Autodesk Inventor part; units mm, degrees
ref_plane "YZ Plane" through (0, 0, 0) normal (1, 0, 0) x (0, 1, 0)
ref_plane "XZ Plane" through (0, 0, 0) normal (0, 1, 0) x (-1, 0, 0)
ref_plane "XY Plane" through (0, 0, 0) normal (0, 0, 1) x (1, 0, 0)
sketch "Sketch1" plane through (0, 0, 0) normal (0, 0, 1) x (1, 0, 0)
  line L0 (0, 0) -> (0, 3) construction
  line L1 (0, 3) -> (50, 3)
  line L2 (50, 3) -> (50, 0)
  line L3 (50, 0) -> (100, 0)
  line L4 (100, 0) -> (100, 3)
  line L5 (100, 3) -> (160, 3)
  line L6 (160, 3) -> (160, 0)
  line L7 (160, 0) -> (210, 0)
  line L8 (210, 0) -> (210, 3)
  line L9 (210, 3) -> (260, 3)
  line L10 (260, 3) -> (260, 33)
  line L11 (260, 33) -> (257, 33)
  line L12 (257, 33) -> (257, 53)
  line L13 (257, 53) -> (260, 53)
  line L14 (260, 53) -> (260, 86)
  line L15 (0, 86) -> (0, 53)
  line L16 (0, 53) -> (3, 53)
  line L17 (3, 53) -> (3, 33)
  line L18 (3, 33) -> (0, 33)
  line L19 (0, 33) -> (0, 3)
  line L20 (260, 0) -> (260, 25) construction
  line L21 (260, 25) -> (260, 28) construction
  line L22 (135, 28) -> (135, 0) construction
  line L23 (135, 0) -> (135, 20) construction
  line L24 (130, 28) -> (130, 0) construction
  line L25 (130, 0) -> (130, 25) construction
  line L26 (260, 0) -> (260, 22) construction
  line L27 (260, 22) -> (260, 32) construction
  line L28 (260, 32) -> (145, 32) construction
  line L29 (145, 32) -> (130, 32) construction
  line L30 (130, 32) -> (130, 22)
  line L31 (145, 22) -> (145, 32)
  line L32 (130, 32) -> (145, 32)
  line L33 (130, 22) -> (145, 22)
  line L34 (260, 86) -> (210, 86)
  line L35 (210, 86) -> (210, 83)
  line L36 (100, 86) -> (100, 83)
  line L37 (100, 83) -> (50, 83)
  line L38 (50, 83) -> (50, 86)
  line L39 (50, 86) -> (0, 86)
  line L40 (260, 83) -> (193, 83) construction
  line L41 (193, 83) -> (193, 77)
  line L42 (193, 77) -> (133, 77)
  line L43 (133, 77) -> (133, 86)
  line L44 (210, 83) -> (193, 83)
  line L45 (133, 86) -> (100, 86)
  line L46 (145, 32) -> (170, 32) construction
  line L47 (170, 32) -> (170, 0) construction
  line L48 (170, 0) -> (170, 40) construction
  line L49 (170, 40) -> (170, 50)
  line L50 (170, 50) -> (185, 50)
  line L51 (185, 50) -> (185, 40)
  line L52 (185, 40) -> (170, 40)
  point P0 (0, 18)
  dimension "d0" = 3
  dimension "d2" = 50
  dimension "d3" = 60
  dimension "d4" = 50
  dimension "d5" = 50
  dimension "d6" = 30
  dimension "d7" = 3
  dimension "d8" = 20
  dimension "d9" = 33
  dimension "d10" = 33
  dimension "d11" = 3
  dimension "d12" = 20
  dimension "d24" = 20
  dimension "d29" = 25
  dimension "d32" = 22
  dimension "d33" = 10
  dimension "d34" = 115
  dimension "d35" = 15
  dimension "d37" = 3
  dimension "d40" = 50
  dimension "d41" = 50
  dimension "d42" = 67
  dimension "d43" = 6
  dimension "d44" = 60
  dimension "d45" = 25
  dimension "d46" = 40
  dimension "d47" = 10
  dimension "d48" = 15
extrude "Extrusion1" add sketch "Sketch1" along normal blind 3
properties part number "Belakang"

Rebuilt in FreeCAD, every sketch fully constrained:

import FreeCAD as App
import Part
import Sketcher
Q = App.Units.Quantity

doc = App.newDocument("Part")
params = doc.addObject("Spreadsheet::Sheet", "Params")
for row, (alias, value) in enumerate([
    ("sketch1_width", "50 mm"),
    ("sketch1_width2", "60 mm"),
    ("sketch1_width3", "3 mm"),
    ("sketch1_width4", "33 mm"),
    ("sketch1_width5", "15 mm"),
    ("pad1_length", "3 mm"),
], start=1):
    params.set(f"A{row}", alias)
    params.set(f"B{row}", "=" + value)
    params.setAlias(f"B{row}", alias)

body = doc.addObject("PartDesign::Body", "Body")

sketch1 = body.newObject("Sketcher::SketchObject", "Sketch")
sketch1.AttachmentSupport = (doc.getObject("XY_Plane"), [""])
sketch1.MapMode = "FlatFace"
sketch1.addGeometry([
    Part.LineSegment(App.Vector(0, 33, 0), App.Vector(0, 3, 0)),
    Part.LineSegment(App.Vector(0, 3, 0), App.Vector(50, 3, 0)),
    Part.LineSegment(App.Vector(50, 3, 0), App.Vector(50, 0, 0)),
    Part.LineSegment(App.Vector(50, 0, 0), App.Vector(100, 0, 0)),
    Part.LineSegment(App.Vector(100, 0, 0), App.Vector(100, 3, 0)),
    Part.LineSegment(App.Vector(100, 3, 0), App.Vector(160, 3, 0)),
    Part.LineSegment(App.Vector(160, 3, 0), App.Vector(160, 0, 0)),
    Part.LineSegment(App.Vector(160, 0, 0), App.Vector(210, 0, 0)),
    Part.LineSegment(App.Vector(210, 0, 0), App.Vector(210, 3, 0)),
    Part.LineSegment(App.Vector(210, 3, 0), App.Vector(260, 3, 0)),
    Part.LineSegment(App.Vector(260, 3, 0), App.Vector(260, 33, 0)),
    Part.LineSegment(App.Vector(260, 33, 0), App.Vector(257, 33, 0)),
    Part.LineSegment(App.Vector(257, 33, 0), App.Vector(257, 53, 0)),
    Part.LineSegment(App.Vector(257, 53, 0), App.Vector(260, 53, 0)),
    Part.LineSegment(App.Vector(260, 53, 0), App.Vector(260, 86, 0)),
    Part.LineSegment(App.Vector(260, 86, 0), App.Vector(210, 86, 0)),
    Part.LineSegment(App.Vector(210, 86, 0), App.Vector(210, 83, 0)),
    Part.LineSegment(App.Vector(210, 83, 0), App.Vector(193, 83, 0)),
    Part.LineSegment(App.Vector(193, 83, 0), App.Vector(193, 77, 0)),
    Part.LineSegment(App.Vector(193, 77, 0), App.Vector(133, 77, 0)),
    Part.LineSegment(App.Vector(133, 77, 0), App.Vector(133, 86, 0)),
    Part.LineSegment(App.Vector(133, 86, 0), App.Vector(100, 86, 0)),
    Part.LineSegment(App.Vector(100, 86, 0), App.Vector(100, 83, 0)),
    Part.LineSegment(App.Vector(100, 83, 0), App.Vector(50, 83, 0)),
    Part.LineSegment(App.Vector(50, 83, 0), App.Vector(50, 86, 0)),
    Part.LineSegment(App.Vector(50, 86, 0), App.Vector(0, 86, 0)),
    Part.LineSegment(App.Vector(0, 86, 0), App.Vector(0, 53, 0)),
    Part.LineSegment(App.Vector(0, 53, 0), App.Vector(3, 53, 0)),
    Part.LineSegment(App.Vector(3, 53, 0), App.Vector(3, 33, 0)),
    Part.LineSegment(App.Vector(3, 33, 0), App.Vector(0, 33, 0)),
    Part.LineSegment(App.Vector(130, 22, 0), App.Vector(130, 32, 0)),
    Part.LineSegment(App.Vector(130, 32, 0), App.Vector(145, 32, 0)),
    Part.LineSegment(App.Vector(145, 32, 0), App.Vector(145, 22, 0)),
    Part.LineSegment(App.Vector(145, 22, 0), App.Vector(130, 22, 0)),
    Part.LineSegment(App.Vector(185, 40, 0), App.Vector(170, 40, 0)),
    Part.LineSegment(App.Vector(170, 40, 0), App.Vector(170, 50, 0)),
    Part.LineSegment(App.Vector(170, 50, 0), App.Vector(185, 50, 0)),
    Part.LineSegment(App.Vector(185, 50, 0), App.Vector(185, 40, 0)),
], False)
sketch1.addConstraint([
    Sketcher.Constraint("Coincident", 0, 2, 1, 1),
    Sketcher.Constraint("Coincident", 1, 2, 2, 1),
    Sketcher.Constraint("Coincident", 2, 2, 3, 1),
    Sketcher.Constraint("Coincident", 3, 2, 4, 1),
    Sketcher.Constraint("Coincident", 4, 2, 5, 1),
    Sketcher.Constraint("Coincident", 5, 2, 6, 1),
    Sketcher.Constraint("Coincident", 6, 2, 7, 1),
    Sketcher.Constraint("Coincident", 7, 2, 8, 1),
    Sketcher.Constraint("Coincident", 8, 2, 9, 1),
    Sketcher.Constraint("Coincident", 9, 2, 10, 1),
    Sketcher.Constraint("Coincident", 10, 2, 11, 1),
    Sketcher.Constraint("Coincident", 11, 2, 12, 1),
    Sketcher.Constraint("Coincident", 12, 2, 13, 1),
    Sketcher.Constraint("Coincident", 13, 2, 14, 1),
    Sketcher.Constraint("Coincident", 14, 2, 15, 1),
    Sketcher.Constraint("Coincident", 15, 2, 16, 1),
    Sketcher.Constraint("Coincident", 16, 2, 17, 1),
    Sketcher.Constraint("Coincident", 17, 2, 18, 1),
    Sketcher.Constraint("Coincident", 18, 2, 19, 1),
    Sketcher.Constraint("Coincident", 19, 2, 20, 1),
    Sketcher.Constraint("Coincident", 20, 2, 21, 1),
    Sketcher.Constraint("Coincident", 21, 2, 22, 1),
    Sketcher.Constraint("Coincident", 22, 2, 23, 1),
    Sketcher.Constraint("Coincident", 23, 2, 24, 1),
    Sketcher.Constraint("Coincident", 24, 2, 25, 1),
    Sketcher.Constraint("Coincident", 25, 2, 26, 1),
    Sketcher.Constraint("Coincident", 26, 2, 27, 1),
    Sketcher.Constraint("Coincident", 27, 2, 28, 1),
    Sketcher.Constraint("Coincident", 28, 2, 29, 1),
    Sketcher.Constraint("Coincident", 29, 2, 0, 1),
    Sketcher.Constraint("Coincident", 30, 2, 31, 1),
    Sketcher.Constraint("Coincident", 31, 2, 32, 1),
    Sketcher.Constraint("Coincident", 32, 2, 33, 1),
    Sketcher.Constraint("Coincident", 33, 2, 30, 1),
    Sketcher.Constraint("Coincident", 34, 2, 35, 1),
    Sketcher.Constraint("Coincident", 35, 2, 36, 1),
    Sketcher.Constraint("Coincident", 36, 2, 37, 1),
    Sketcher.Constraint("Coincident", 37, 2, 34, 1),
    Sketcher.Constraint("Vertical", 0),
    Sketcher.Constraint("Horizontal", 1),
    Sketcher.Constraint("Vertical", 2),
    Sketcher.Constraint("Horizontal", 3),
    Sketcher.Constraint("Vertical", 4),
    Sketcher.Constraint("Horizontal", 5),
    Sketcher.Constraint("Vertical", 6),
    Sketcher.Constraint("Horizontal", 7),
    Sketcher.Constraint("Vertical", 8),
    Sketcher.Constraint("Horizontal", 9),
    Sketcher.Constraint("Vertical", 10),
    Sketcher.Constraint("Horizontal", 11),
    Sketcher.Constraint("Vertical", 12),
    Sketcher.Constraint("Horizontal", 13),
    Sketcher.Constraint("Vertical", 14),
    Sketcher.Constraint("Horizontal", 15),
    Sketcher.Constraint("Vertical", 16),
    Sketcher.Constraint("Horizontal", 17),
    Sketcher.Constraint("Vertical", 18),
    Sketcher.Constraint("Horizontal", 19),
    Sketcher.Constraint("Vertical", 20),
    Sketcher.Constraint("Horizontal", 21),
    Sketcher.Constraint("Vertical", 22),
    Sketcher.Constraint("Horizontal", 23),
    Sketcher.Constraint("Vertical", 24),
    Sketcher.Constraint("Horizontal", 25),
    Sketcher.Constraint("Vertical", 26),
    Sketcher.Constraint("Horizontal", 27),
    Sketcher.Constraint("Vertical", 28),
    Sketcher.Constraint("Horizontal", 29),
    Sketcher.Constraint("Vertical", 30),
    Sketcher.Constraint("Horizontal", 31),
    Sketcher.Constraint("Vertical", 32),
    Sketcher.Constraint("Horizontal", 33),
    Sketcher.Constraint("Horizontal", 34),
    Sketcher.Constraint("Vertical", 35),
    Sketcher.Constraint("Horizontal", 36),
    Sketcher.Constraint("Vertical", 37),
    Sketcher.Constraint("PointOnObject", 0, 2, -2),
    Sketcher.Constraint("PointOnObject", 2, 2, -1),
    Sketcher.Constraint("PointOnObject", 6, 2, -1),
    Sketcher.Constraint("PointOnObject", 25, 2, -2),
    Sketcher.Constraint("Horizontal", 1, 2, 4, 2),
    Sketcher.Constraint("Horizontal", 5, 2, 8, 2),
    Sketcher.Constraint("Horizontal", 15, 2, 20, 2),
    Sketcher.Constraint("Horizontal", 17, 2, 22, 2),
    Sketcher.Constraint("Horizontal", 21, 2, 24, 2),
    Sketcher.Constraint("Horizontal", 13, 2, 26, 2),
    Sketcher.Constraint("Horizontal", 11, 2, 28, 2),
    Sketcher.Constraint("Vertical", 10, 2, 13, 2),
    Sketcher.Constraint("Vertical", 8, 2, 15, 2),
    Sketcher.Constraint("Vertical", 4, 2, 21, 2),
    Sketcher.Constraint("Vertical", 2, 2, 23, 2),
    Sketcher.Constraint("Equal", 1, 3),
    Sketcher.Constraint("Equal", 3, 7),
    Sketcher.Constraint("Equal", 7, 9),
    Sketcher.Constraint("Equal", 5, 19),
    Sketcher.Constraint("Equal", 13, 27),
    Sketcher.Constraint("Equal", 33, 34),
    Sketcher.Constraint("Equal", 29, 2),
    Sketcher.Constraint("Equal", 21, 14),
    Sketcher.Constraint("Equal", 8, 16),
    Sketcher.Constraint("Equal", 32, 35),
    Sketcher.Constraint("DistanceX", 1, 1, 1, 2, Q("50 mm")),
    Sketcher.Constraint("DistanceX", 5, 1, 5, 2, Q("60 mm")),
    Sketcher.Constraint("DistanceX", 11, 2, 11, 1, Q("3 mm")),
    Sketcher.Constraint("DistanceX", 21, 2, 21, 1, Q("33 mm")),
    Sketcher.Constraint("DistanceX", 31, 1, 31, 2, Q("15 mm")),
    Sketcher.Constraint("DistanceY", 0, 2, 0, 1, Q("30 mm")),
    Sketcher.Constraint("DistanceY", 12, 1, 12, 2, Q("20 mm")),
    Sketcher.Constraint("DistanceY", 18, 2, 18, 1, Q("6 mm")),
    Sketcher.Constraint("DistanceY", 30, 1, 30, 2, Q("10 mm")),
    Sketcher.Constraint("DistanceY", -1, 1, 32, 2, Q("22 mm")),
    Sketcher.Constraint("DistanceY", -1, 1, 34, 2, Q("40 mm")),
    Sketcher.Constraint("DistanceX", 4, 2, 30, 2, Q("30 mm")),
    Sketcher.Constraint("DistanceX", 31, 2, 34, 2, Q("25 mm")),
])
sketch1.setExpression("Constraints[101]", "Params.sketch1_width")
sketch1.setExpression("Constraints[102]", "Params.sketch1_width2")
sketch1.setExpression("Constraints[103]", "Params.sketch1_width3")
sketch1.setExpression("Constraints[104]", "Params.sketch1_width4")
sketch1.setExpression("Constraints[105]", "Params.sketch1_width5")
pad1 = body.newObject("PartDesign::Pad", "Pad")
pad1.Profile = sketch1
pad1.setExpression("Length", "Params.pad1_length")

doc.recompute()
